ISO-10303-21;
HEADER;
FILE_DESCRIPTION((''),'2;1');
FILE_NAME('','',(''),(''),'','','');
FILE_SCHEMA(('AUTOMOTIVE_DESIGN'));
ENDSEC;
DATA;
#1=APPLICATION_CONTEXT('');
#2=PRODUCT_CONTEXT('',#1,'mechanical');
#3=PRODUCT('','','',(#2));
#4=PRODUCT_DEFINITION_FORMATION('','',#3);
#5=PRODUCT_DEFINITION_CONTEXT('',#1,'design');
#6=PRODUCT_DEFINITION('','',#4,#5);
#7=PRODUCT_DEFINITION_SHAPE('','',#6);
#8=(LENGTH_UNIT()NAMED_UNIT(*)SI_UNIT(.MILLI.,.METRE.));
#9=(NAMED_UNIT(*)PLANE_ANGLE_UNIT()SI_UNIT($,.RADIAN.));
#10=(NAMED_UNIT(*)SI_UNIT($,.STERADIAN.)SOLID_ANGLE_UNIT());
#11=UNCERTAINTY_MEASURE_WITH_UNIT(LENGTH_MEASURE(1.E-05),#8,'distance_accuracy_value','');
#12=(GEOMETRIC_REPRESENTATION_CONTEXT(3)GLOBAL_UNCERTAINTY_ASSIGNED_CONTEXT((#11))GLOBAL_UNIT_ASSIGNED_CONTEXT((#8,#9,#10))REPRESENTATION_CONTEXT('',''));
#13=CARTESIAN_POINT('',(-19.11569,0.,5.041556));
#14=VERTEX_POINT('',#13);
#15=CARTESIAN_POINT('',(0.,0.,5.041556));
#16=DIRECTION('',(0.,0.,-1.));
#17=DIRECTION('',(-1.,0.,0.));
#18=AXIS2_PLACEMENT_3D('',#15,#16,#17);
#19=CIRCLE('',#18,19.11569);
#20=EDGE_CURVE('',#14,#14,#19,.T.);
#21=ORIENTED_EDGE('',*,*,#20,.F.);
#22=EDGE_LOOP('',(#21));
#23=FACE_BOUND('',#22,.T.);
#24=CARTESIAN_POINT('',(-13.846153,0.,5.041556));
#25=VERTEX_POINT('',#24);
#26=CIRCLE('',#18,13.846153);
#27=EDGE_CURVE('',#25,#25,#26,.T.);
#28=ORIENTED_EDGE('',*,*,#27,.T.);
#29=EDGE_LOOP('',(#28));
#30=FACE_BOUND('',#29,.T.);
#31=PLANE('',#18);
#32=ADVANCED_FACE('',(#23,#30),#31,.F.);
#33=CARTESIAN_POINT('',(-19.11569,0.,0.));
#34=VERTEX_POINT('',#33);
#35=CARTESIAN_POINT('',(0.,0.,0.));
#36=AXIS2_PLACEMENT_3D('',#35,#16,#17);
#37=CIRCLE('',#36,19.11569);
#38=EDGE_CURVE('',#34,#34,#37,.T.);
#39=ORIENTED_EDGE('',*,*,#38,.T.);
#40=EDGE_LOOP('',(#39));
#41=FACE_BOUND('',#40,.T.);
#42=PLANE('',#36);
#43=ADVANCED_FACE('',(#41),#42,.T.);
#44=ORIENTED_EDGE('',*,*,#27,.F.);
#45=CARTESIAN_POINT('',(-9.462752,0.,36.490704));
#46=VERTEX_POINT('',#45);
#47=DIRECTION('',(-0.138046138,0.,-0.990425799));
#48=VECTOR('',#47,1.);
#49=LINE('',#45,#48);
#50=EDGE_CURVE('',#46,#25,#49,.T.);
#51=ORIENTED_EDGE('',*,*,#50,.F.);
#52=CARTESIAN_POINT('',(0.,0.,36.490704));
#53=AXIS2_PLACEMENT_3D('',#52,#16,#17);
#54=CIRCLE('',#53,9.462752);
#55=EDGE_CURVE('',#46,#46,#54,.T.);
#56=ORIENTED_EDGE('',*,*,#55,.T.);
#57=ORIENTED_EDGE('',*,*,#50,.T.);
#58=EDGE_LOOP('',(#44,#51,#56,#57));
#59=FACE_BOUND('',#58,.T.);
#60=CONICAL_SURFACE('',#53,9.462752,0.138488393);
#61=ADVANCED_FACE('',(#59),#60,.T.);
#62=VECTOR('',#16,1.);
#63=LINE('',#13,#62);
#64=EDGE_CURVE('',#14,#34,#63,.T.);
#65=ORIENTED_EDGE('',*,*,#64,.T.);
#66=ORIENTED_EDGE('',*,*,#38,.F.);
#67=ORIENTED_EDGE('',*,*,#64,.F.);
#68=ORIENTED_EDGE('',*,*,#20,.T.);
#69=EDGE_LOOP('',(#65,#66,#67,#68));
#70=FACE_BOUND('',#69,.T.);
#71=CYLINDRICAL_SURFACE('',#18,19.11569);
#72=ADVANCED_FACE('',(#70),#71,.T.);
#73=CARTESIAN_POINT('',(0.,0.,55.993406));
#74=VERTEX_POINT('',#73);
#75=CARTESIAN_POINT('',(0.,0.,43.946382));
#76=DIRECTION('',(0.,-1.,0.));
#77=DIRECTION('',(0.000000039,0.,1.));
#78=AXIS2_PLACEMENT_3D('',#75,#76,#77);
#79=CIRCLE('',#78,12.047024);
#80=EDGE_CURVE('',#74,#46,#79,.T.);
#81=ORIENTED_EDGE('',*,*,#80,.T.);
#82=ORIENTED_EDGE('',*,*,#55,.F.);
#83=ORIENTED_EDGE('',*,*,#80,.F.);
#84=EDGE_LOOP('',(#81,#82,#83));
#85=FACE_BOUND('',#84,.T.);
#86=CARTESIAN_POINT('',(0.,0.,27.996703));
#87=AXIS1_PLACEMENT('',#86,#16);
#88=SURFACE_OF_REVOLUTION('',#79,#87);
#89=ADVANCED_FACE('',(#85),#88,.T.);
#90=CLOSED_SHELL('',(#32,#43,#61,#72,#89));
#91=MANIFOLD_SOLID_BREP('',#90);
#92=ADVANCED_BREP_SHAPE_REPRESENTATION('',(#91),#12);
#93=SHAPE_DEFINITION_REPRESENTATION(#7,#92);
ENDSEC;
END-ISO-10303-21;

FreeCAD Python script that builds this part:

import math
import FreeCAD as App
import Part
import Sketcher

V = App.Vector
Q = App.Units.Quantity

doc = App.newDocument("Part")
body = doc.addObject("PartDesign::Body", "Body")

# Sketch on XZ plane
sketch1 = body.newObject("Sketcher::SketchObject", "Sketch")
sketch1.AttachmentSupport = (doc.getObject("XZ_Plane"), [""])
sketch1.MapMode = "FlatFace"
sketch1.addGeometry(Part.LineSegment(V(-9, 36, 0), V(-14, 5, 0)), False)
sketch1.addGeometry(Part.LineSegment(V(-14, 5, 0), V(-19, 5, 0)), False)
sketch1.addGeometry(Part.LineSegment(V(-19, 5, 0), V(-19, 0, 0)), False)
sketch1.addGeometry(Part.LineSegment(V(-19, 0, 0), V(0, 0, 0)), False)
sketch1.addGeometry(Part.LineSegment(V(0, 0, 0), V(0, 56, 0)), False)
sketch1.addGeometry(Part.ArcOfCircle(Part.Circle(V(0, 44, 0), V(0, 0, 1), 12), math.radians(90), math.radians(218)), False)
sketch1.addConstraint(Sketcher.Constraint("Coincident", 0, 2, 1, 1))
sketch1.addConstraint(Sketcher.Constraint("Coincident", 1, 2, 2, 1))
sketch1.addConstraint(Sketcher.Constraint("Coincident", 2, 2, 3, 1))
sketch1.addConstraint(Sketcher.Constraint("Coincident", 3, 2, 4, 1))
sketch1.addConstraint(Sketcher.Constraint("Coincident", 4, 2, 5, 1))
sketch1.addConstraint(Sketcher.Constraint("Coincident", 5, 2, 0, 1))
sketch1.addConstraint(Sketcher.Constraint("Horizontal", 1))
sketch1.addConstraint(Sketcher.Constraint("Vertical", 2))
sketch1.addConstraint(Sketcher.Constraint("Horizontal", 3))
sketch1.addConstraint(Sketcher.Constraint("Vertical", 4))
sketch1.addConstraint(Sketcher.Constraint("Coincident", 3, 2, -1, 1))
sketch1.addConstraint(Sketcher.Constraint("PointOnObject", 5, 3, -2))
sketch1.addConstraint(Sketcher.Constraint("Radius", 5, Q("12.047024 mm")))
sketch1.addConstraint(Sketcher.Constraint("DistanceX", 3, 1, 3, 2, Q("19.11569 mm")))
sketch1.addConstraint(Sketcher.Constraint("DistanceY", 5, 2, 4, 2, Q("19.502702 mm")))
sketch1.addConstraint(Sketcher.Constraint("DistanceX", 0, 2, 5, 2, Q("4.383401 mm")))
sketch1.addConstraint(Sketcher.Constraint("Distance", 0, Q("31.753159 mm")))
sketch1.addConstraint(Sketcher.Constraint("DistanceY", 2, 2, 2, 1, Q("5.041556 mm")))
revolution = body.newObject("PartDesign::Revolution", "Revolution")
revolution.Profile = sketch1
revolution.ReferenceAxis = (sketch1, ["V_Axis"])
revolution.Angle = 360

doc.recompute()
